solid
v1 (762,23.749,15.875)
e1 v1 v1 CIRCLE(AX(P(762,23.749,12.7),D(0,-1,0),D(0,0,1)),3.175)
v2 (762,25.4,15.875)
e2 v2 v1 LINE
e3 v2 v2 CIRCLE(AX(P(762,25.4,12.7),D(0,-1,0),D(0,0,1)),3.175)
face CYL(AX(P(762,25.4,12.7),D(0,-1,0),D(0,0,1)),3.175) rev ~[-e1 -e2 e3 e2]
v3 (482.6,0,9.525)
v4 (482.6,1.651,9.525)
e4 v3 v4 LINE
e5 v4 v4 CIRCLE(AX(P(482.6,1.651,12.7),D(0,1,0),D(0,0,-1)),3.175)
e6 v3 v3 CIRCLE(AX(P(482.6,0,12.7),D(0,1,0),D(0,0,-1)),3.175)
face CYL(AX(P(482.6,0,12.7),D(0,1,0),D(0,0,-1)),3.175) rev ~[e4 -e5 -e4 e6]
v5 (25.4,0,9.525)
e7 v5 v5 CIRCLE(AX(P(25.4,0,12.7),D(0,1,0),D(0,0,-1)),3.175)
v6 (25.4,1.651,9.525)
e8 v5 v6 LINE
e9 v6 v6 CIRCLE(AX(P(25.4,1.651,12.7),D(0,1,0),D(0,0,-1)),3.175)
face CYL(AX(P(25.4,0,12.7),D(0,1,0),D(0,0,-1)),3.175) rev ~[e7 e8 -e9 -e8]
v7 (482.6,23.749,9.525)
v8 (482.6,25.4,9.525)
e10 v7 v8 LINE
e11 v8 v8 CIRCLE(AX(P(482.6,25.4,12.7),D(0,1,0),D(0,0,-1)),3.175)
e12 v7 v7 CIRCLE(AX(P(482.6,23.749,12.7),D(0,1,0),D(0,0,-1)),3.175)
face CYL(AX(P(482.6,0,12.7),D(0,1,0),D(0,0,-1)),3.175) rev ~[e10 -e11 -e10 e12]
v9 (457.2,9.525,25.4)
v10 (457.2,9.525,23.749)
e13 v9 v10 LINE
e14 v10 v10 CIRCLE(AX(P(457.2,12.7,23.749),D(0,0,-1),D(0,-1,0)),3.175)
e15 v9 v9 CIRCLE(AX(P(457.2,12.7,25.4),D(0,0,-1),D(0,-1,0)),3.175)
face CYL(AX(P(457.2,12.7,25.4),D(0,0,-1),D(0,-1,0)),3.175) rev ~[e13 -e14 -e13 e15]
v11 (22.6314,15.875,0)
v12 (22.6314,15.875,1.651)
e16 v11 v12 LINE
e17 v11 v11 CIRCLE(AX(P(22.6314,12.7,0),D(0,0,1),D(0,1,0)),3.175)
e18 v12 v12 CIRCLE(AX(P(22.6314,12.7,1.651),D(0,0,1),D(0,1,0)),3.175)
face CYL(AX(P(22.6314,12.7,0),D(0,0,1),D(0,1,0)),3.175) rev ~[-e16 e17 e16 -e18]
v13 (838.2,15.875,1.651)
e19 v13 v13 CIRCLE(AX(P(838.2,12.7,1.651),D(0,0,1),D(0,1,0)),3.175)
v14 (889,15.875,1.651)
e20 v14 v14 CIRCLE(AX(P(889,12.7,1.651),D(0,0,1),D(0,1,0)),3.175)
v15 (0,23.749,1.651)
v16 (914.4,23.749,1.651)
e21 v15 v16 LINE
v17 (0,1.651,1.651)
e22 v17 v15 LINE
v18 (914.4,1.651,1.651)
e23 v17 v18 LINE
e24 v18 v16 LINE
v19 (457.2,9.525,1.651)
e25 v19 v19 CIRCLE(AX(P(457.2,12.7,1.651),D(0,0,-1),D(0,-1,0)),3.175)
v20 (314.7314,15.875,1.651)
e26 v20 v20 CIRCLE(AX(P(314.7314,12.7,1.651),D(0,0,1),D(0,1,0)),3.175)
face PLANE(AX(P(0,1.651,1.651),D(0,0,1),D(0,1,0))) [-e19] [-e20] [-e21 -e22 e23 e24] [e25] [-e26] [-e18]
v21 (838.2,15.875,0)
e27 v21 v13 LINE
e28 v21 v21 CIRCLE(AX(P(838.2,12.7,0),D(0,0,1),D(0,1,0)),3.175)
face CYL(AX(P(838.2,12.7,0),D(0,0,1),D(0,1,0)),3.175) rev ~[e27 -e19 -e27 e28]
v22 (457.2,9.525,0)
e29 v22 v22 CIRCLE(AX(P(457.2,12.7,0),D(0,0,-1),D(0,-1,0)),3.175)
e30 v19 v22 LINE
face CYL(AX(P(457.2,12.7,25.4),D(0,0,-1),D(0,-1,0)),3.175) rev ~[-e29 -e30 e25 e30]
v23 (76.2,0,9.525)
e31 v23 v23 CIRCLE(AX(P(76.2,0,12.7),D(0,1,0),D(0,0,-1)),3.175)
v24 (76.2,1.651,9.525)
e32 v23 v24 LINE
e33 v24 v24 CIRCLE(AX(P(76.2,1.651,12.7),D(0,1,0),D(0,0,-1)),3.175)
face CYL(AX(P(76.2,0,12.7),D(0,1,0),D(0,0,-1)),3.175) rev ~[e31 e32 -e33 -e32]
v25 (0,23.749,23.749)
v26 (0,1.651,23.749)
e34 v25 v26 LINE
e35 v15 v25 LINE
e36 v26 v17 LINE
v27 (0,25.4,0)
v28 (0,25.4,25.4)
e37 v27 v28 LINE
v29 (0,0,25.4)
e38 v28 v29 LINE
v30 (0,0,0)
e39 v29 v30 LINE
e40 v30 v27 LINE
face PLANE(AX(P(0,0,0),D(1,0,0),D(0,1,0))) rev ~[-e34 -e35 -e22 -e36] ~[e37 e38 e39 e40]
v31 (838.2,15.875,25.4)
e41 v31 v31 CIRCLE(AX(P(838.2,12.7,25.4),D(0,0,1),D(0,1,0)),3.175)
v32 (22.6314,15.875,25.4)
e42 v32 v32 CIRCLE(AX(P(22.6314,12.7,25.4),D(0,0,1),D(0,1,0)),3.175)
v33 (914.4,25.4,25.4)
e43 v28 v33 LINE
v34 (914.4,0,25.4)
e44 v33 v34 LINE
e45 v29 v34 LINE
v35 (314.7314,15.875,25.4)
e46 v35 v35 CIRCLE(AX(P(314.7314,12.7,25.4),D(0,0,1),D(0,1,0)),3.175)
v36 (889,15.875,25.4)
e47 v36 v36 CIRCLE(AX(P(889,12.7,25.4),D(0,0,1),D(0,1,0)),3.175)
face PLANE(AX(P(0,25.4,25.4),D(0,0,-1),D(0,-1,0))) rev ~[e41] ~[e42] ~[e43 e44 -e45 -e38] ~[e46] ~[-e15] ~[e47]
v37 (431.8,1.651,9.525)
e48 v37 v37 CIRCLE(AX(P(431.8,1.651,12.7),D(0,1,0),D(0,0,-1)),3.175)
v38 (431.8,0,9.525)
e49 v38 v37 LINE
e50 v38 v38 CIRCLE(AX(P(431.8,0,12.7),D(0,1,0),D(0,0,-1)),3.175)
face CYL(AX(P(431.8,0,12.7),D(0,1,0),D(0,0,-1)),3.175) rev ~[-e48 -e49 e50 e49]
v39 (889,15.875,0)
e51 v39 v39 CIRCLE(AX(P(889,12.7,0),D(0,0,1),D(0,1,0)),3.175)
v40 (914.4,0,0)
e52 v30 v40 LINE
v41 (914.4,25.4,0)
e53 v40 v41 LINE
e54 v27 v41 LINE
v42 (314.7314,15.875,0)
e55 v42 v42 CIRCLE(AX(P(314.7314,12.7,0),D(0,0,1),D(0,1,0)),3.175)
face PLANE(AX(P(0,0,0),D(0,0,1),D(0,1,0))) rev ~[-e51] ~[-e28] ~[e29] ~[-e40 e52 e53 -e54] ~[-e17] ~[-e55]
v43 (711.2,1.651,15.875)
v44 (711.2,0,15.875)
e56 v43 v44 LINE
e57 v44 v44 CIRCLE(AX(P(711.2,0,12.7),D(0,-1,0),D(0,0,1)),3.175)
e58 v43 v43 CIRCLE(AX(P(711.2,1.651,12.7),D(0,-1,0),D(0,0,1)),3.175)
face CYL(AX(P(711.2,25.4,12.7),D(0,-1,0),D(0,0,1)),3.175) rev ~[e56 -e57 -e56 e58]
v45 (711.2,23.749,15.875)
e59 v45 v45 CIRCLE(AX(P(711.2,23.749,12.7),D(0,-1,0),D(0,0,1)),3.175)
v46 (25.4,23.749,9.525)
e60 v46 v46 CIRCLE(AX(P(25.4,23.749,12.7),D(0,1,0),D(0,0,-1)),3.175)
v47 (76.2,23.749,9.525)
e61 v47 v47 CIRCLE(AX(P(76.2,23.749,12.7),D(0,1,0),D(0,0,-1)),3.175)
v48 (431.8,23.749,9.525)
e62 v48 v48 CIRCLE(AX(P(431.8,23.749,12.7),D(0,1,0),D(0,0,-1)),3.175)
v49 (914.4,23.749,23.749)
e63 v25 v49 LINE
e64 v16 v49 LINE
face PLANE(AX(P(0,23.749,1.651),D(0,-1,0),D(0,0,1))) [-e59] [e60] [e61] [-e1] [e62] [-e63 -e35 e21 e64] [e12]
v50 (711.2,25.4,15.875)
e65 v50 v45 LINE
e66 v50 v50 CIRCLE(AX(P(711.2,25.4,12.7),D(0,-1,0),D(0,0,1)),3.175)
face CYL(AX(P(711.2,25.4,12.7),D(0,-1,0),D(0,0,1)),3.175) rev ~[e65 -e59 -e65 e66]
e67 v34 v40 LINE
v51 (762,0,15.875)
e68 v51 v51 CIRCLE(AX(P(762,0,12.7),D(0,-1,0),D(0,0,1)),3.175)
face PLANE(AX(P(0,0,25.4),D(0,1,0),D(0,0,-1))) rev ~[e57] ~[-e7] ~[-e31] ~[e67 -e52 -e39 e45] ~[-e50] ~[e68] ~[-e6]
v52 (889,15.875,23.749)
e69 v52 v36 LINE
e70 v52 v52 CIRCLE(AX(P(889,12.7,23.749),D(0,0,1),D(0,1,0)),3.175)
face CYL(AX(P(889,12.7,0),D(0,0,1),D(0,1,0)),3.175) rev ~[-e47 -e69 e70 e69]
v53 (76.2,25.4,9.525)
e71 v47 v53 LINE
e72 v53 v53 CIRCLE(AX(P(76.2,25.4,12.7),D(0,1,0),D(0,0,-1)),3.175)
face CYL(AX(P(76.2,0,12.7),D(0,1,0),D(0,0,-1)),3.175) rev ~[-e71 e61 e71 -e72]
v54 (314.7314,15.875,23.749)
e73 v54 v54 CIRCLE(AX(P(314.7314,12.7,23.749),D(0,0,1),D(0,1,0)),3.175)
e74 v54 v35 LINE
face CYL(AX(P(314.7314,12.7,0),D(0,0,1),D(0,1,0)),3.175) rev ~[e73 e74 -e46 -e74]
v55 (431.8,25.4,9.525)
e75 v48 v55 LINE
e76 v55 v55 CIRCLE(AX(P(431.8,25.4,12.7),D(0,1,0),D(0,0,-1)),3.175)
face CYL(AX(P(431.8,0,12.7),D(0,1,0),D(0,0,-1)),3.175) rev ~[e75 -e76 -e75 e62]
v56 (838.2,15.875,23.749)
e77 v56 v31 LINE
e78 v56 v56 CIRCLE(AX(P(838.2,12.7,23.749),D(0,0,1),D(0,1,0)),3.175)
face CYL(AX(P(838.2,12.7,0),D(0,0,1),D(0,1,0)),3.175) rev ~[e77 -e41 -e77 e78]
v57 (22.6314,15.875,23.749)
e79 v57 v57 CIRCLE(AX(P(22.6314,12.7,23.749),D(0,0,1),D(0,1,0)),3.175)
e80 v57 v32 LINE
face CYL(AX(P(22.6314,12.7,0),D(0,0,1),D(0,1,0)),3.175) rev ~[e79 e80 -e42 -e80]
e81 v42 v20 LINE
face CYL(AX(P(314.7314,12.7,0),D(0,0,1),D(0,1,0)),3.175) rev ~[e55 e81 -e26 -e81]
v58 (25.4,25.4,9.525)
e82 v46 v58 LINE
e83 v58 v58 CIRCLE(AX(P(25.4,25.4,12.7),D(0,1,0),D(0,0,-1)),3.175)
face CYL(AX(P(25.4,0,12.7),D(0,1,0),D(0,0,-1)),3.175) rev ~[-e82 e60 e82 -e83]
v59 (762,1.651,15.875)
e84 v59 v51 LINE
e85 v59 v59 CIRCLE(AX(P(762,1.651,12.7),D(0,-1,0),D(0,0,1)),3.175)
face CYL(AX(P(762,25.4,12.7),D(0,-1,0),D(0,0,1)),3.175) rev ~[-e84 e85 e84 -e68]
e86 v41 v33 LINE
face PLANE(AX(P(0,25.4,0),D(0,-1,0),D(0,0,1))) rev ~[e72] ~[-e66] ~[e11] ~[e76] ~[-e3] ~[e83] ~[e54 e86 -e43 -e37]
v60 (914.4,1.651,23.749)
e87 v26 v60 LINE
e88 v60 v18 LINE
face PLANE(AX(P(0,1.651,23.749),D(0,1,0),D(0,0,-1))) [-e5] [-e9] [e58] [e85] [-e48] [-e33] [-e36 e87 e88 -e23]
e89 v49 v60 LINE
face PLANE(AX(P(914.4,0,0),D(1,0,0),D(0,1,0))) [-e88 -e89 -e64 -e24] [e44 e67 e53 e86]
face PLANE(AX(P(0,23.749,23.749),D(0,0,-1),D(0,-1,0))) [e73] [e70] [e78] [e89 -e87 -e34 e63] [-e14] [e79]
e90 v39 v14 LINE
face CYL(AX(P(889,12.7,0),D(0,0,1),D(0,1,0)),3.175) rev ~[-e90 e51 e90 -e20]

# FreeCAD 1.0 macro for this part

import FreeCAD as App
import Part
import Sketcher
Q = App.Units.Quantity

doc = App.newDocument("Part")
body = doc.addObject("PartDesign::Body", "Body")

sketch1 = body.newObject("Sketcher::SketchObject", "Sketch")
sketch1.AttachmentSupport = (doc.getObject("YZ_Plane"), [""])
sketch1.MapMode = "FlatFace"
sketch1.addGeometry(Part.LineSegment(App.Vector(0, 25, 0), App.Vector(0, 0, 0)), False)
sketch1.addGeometry(Part.LineSegment(App.Vector(0, 0, 0), App.Vector(25, 0, 0)), False)
sketch1.addGeometry(Part.LineSegment(App.Vector(25, 0, 0), App.Vector(25, 25, 0)), False)
sketch1.addGeometry(Part.LineSegment(App.Vector(25, 25, 0), App.Vector(0, 25, 0)), False)
sketch1.addGeometry(Part.LineSegment(App.Vector(24, 2, 0), App.Vector(2, 2, 0)), False)
sketch1.addGeometry(Part.LineSegment(App.Vector(2, 2, 0), App.Vector(2, 24, 0)), False)
sketch1.addGeometry(Part.LineSegment(App.Vector(2, 24, 0), App.Vector(24, 24, 0)), False)
sketch1.addGeometry(Part.LineSegment(App.Vector(24, 24, 0), App.Vector(24, 2, 0)), False)
sketch1.addConstraint(Sketcher.Constraint("Coincident", 0, 2, 1, 1))
sketch1.addConstraint(Sketcher.Constraint("Coincident", 1, 2, 2, 1))
sketch1.addConstraint(Sketcher.Constraint("Coincident", 2, 2, 3, 1))
sketch1.addConstraint(Sketcher.Constraint("Coincident", 3, 2, 0, 1))
sketch1.addConstraint(Sketcher.Constraint("Coincident", 4, 2, 5, 1))
sketch1.addConstraint(Sketcher.Constraint("Coincident", 5, 2, 6, 1))
sketch1.addConstraint(Sketcher.Constraint("Coincident", 6, 2, 7, 1))
sketch1.addConstraint(Sketcher.Constraint("Coincident", 7, 2, 4, 1))
sketch1.addConstraint(Sketcher.Constraint("Vertical", 0))
sketch1.addConstraint(Sketcher.Constraint("Horizontal", 1))
sketch1.addConstraint(Sketcher.Constraint("Vertical", 2))
sketch1.addConstraint(Sketcher.Constraint("Horizontal", 3))
sketch1.addConstraint(Sketcher.Constraint("Horizontal", 4))
sketch1.addConstraint(Sketcher.Constraint("Vertical", 5))
sketch1.addConstraint(Sketcher.Constraint("Horizontal", 6))
sketch1.addConstraint(Sketcher.Constraint("Vertical", 7))
sketch1.addConstraint(Sketcher.Constraint("Coincident", 0, 2, -1, 1))
sketch1.addConstraint(Sketcher.Constraint("Equal", 3, 0))
sketch1.addConstraint(Sketcher.Constraint("Equal", 6, 5))
sketch1.addConstraint(Sketcher.Constraint("DistanceX", 1, 1, 1, 2, Q("1 in")))
sketch1.addConstraint(Sketcher.Constraint("DistanceX", -1, 1, 4, 2, Q("0.065 in")))
sketch1.addConstraint(Sketcher.Constraint("DistanceY", -1, 1, 4, 2, Q("0.065 in")))
sketch1.addConstraint(Sketcher.Constraint("DistanceY", 5, 2, 3, 2, Q("0.065 in")))
pad1 = body.newObject("PartDesign::Pad", "Pad")
pad1.Profile = sketch1
pad1.Length = Q("36 in")

sketch2 = body.newObject("Sketcher::SketchObject", "Sketch001")
sketch2.AttachmentSupport = (doc.getObject("XY_Plane"), [""])
sketch2.MapMode = "FlatFace"
sketch2.addGeometry(Part.Circle(App.Vector(889, 12.7, 0), App.Vector(0, 0, 1), 3.2), False)
sketch2.addGeometry(Part.Circle(App.Vector(838.2, 12.7, 0), App.Vector(0, 0, 1), 3.2), False)
sketch2.addConstraint(Sketcher.Constraint("Equal", 0, 1))
sketch2.addConstraint(Sketcher.Constraint("Horizontal", 0, 3, 1, 3))
sketch2.addConstraint(Sketcher.Constraint("Diameter", 0, Q("0.25 in")))
sketch2.addConstraint(Sketcher.Constraint("DistanceX", -1, 1, 0, 3, Q("35 in")))
sketch2.addConstraint(Sketcher.Constraint("DistanceX", -1, 1, 1, 3, Q("33 in")))
sketch2.addConstraint(Sketcher.Constraint("DistanceY", -1, 1, 0, 3, Q("0.5 in")))
doc.recompute()
hole = body.newObject("PartDesign::Hole", "Hole")
hole.Profile = sketch2
hole.ThreadType = "None"
hole.Diameter = Q("0.25 in")
hole.DepthType = "ThroughAll"
hole.Reversed = True

sketch3 = body.newObject("Sketcher::SketchObject", "Sketch002")
sketch3.AttachmentSupport = (doc.getObject("XZ_Plane"), [""])
sketch3.MapMode = "FlatFace"
sketch3.AttachmentOffset = App.Placement(App.Vector(0, 0, -1 * 25.4), App.Rotation())
sketch3.addGeometry(Part.Circle(App.Vector(711.2, 12.7, 0), App.Vector(0, 0, 1), 3.2), False)
sketch3.addGeometry(Part.Circle(App.Vector(762, 12.7, 0), App.Vector(0, 0, 1), 3.2), False)
sketch3.addConstraint(Sketcher.Constraint("Equal", 0, 1))
sketch3.addConstraint(Sketcher.Constraint("Horizontal", 0, 3, 1, 3))
sketch3.addConstraint(Sketcher.Constraint("Diameter", 0, Q("0.25 in")))
sketch3.addConstraint(Sketcher.Constraint("DistanceX", -1, 1, 0, 3, Q("28 in")))
sketch3.addConstraint(Sketcher.Constraint("DistanceX", -1, 1, 1, 3, Q("30 in")))
sketch3.addConstraint(Sketcher.Constraint("DistanceY", -1, 1, 0, 3, Q("0.5 in")))
doc.recompute()
hole2 = body.newObject("PartDesign::Hole", "Hole001")
hole2.Profile = sketch3
hole2.ThreadType = "None"
hole2.Diameter = Q("0.25 in")
hole2.DepthType = "ThroughAll"
hole2.Reversed = True

sketch4 = body.newObject("Sketcher::SketchObject", "Sketch003")
sketch4.AttachmentSupport = (doc.getObject("XY_Plane"), [""])
sketch4.MapMode = "FlatFace"
sketch4.addGeometry(Part.Circle(App.Vector(314.7, 12.7, 0), App.Vector(0, 0, 1), 3.2), False)
sketch4.addGeometry(Part.Circle(App.Vector(22.6, 12.7, 0), App.Vector(0, 0, 1), 3.2), False)
sketch4.addConstraint(Sketcher.Constraint("Equal", 0, 1))
sketch4.addConstraint(Sketcher.Constraint("Horizontal", 0, 3, 1, 3))
sketch4.addConstraint(Sketcher.Constraint("Diameter", 0, Q("0.25 in")))
sketch4.addConstraint(Sketcher.Constraint("DistanceY", -1, 1, 0, 3, Q("0.5 in")))
sketch4.addConstraint(Sketcher.Constraint("DistanceX", 1, 3, 0, 3, Q("11.5 in")))
sketch4.addConstraint(Sketcher.Constraint("DistanceX", -1, 1, 0, 3, Q("12.391 in")))
doc.recompute()
hole3 = body.newObject("PartDesign::Hole", "Hole002")
hole3.Profile = sketch4
hole3.ThreadType = "None"
hole3.Diameter = Q("0.25 in")
hole3.DepthType = "ThroughAll"
hole3.Reversed = True

sketch5 = body.newObject("Sketcher::SketchObject", "Sketch004")
sketch5.AttachmentSupport = (doc.getObject("XZ_Plane"), [""])
sketch5.MapMode = "FlatFace"
sketch5.addGeometry(Part.Circle(App.Vector(431.8, 12.7, 0), App.Vector(0, 0, 1), 3.2), False)
sketch5.addGeometry(Part.Circle(App.Vector(482.6, 12.7, 0), App.Vector(0, 0, 1), 3.2), False)
sketch5.addConstraint(Sketcher.Constraint("Equal", 0, 1))
sketch5.addConstraint(Sketcher.Constraint("Horizontal", 0, 3, 1, 3))
sketch5.addConstraint(Sketcher.Constraint("Diameter", 0, Q("0.25 in")))
sketch5.addConstraint(Sketcher.Constraint("DistanceX", -1, 1, 0, 3, Q("17 in")))
sketch5.addConstraint(Sketcher.Constraint("DistanceX", -1, 1, 1, 3, Q("19 in")))
sketch5.addConstraint(Sketcher.Constraint("DistanceY", -1, 1, 0, 3, Q("0.5 in")))
doc.recompute()
hole4 = body.newObject("PartDesign::Hole", "Hole003")
hole4.Profile = sketch5
hole4.ThreadType = "None"
hole4.Diameter = Q("0.25 in")
hole4.DepthType = "ThroughAll"

sketch6 = body.newObject("Sketcher::SketchObject", "Sketch005")
sketch6.AttachmentSupport = (doc.getObject("XY_Plane"), [""])
sketch6.MapMode = "FlatFace"
sketch6.AttachmentOffset = App.Placement(App.Vector(0, 0, 1 * 25.4), App.Rotation())
sketch6.addGeometry(Part.Circle(App.Vector(457.2, 12.7, 0), App.Vector(0, 0, 1), 3.2), False)
sketch6.addConstraint(Sketcher.Constraint("Diameter", 0, Q("0.25 in")))
sketch6.addConstraint(Sketcher.Constraint("DistanceX", -1, 1, 0, 3, Q("18 in")))
sketch6.addConstraint(Sketcher.Constraint("DistanceY", -1, 1, 0, 3, Q("0.5 in")))
doc.recompute()
hole5 = body.newObject("PartDesign::Hole", "Hole004")
hole5.Profile = sketch6
hole5.ThreadType = "None"
hole5.Diameter = Q("0.25 in")
hole5.DepthType = "ThroughAll"

sketch7 = body.newObject("Sketcher::SketchObject", "Sketch006")
sketch7.AttachmentSupport = (doc.getObject("XZ_Plane"), [""])
sketch7.MapMode = "FlatFace"
sketch7.addGeometry(Part.Circle(App.Vector(25.4, 12.7, 0), App.Vector(0, 0, 1), 3.2), False)
sketch7.addGeometry(Part.Circle(App.Vector(76.2, 12.7, 0), App.Vector(0, 0, 1), 3.2), False)
sketch7.addConstraint(Sketcher.Constraint("Equal", 0, 1))
sketch7.addConstraint(Sketcher.Constraint("Horizontal", 0, 3, 1, 3))
sketch7.addConstraint(Sketcher.Constraint("Diameter", 0, Q("0.25 in")))
sketch7.addConstraint(Sketcher.Constraint("DistanceX", -1, 1, 0, 3, Q("1 in")))
sketch7.addConstraint(Sketcher.Constraint("DistanceX", -1, 1, 1, 3, Q("3 in")))
sketch7.addConstraint(Sketcher.Constraint("DistanceY", -1, 1, 0, 3, Q("0.5 in")))
doc.recompute()
hole6 = body.newObject("PartDesign::Hole", "Hole005")
hole6.Profile = sketch7
hole6.ThreadType = "None"
hole6.Diameter = Q("0.25 in")
hole6.DepthType = "ThroughAll"

doc.recompute()
